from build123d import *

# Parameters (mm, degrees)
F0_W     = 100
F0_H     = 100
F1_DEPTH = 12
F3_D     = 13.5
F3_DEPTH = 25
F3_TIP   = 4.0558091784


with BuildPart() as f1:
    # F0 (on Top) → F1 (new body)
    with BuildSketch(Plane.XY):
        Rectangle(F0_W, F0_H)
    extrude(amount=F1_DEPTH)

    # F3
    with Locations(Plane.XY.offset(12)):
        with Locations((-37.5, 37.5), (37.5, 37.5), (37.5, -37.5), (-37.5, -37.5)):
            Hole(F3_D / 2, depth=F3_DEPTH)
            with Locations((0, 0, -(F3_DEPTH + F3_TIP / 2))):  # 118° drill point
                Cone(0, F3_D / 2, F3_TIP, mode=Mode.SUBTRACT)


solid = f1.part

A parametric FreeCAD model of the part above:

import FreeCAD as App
import Part
import Sketcher
from FreeCAD import Vector

doc = App.newDocument("Part")
body = doc.addObject("PartDesign::Body", "Body")

# Sketch on XY plane
sketch1 = body.newObject("Sketcher::SketchObject", "Sketch")
sketch1.AttachmentSupport = (doc.getObject("XY_Plane"), [""])
sketch1.MapMode = "FlatFace"
sketch1.addGeometry(Part.LineSegment(Vector(-50, 50, 0), Vector(-50, -50, 0)), False)
sketch1.addGeometry(Part.LineSegment(Vector(-50, -50, 0), Vector(50, -50, 0)), False)
sketch1.addGeometry(Part.LineSegment(Vector(50, -50, 0), Vector(50, 50, 0)), False)
sketch1.addGeometry(Part.LineSegment(Vector(50, 50, 0), Vector(-50, 50, 0)), False)
sketch1.addConstraint(Sketcher.Constraint("Coincident", 0, 2, 1, 1))
sketch1.addConstraint(Sketcher.Constraint("Coincident", 1, 2, 2, 1))
sketch1.addConstraint(Sketcher.Constraint("Coincident", 2, 2, 3, 1))
sketch1.addConstraint(Sketcher.Constraint("Coincident", 3, 2, 0, 1))
sketch1.addConstraint(Sketcher.Constraint("Vertical", 0))
sketch1.addConstraint(Sketcher.Constraint("Horizontal", 1))
sketch1.addConstraint(Sketcher.Constraint("Vertical", 2))
sketch1.addConstraint(Sketcher.Constraint("Horizontal", 3))
sketch1.addConstraint(Sketcher.Constraint("Symmetric", 0, 2, 2, 2, -1, 1))
sketch1.addConstraint(Sketcher.Constraint("Equal", 3, 0))
sketch1.addConstraint(Sketcher.Constraint("DistanceX", 1, 1, 1, 2, 100.0))
pad1 = body.newObject("PartDesign::Pad", "Pad")
pad1.Profile = sketch1
pad1.Length = 12

# Sketch on XY plane
sketch2 = body.newObject("Sketcher::SketchObject", "Sketch001")
sketch2.AttachmentSupport = (doc.getObject("XY_Plane"), [""])
sketch2.MapMode = "FlatFace"
sketch2.AttachmentOffset = App.Placement(Vector(0, 0, 12), App.Rotation())
sketch2.addGeometry(Part.Circle(Vector(-37.5, 37.5, 0), Vector(0, 0, 1), 6.75), False)
sketch2.addGeometry(Part.Circle(Vector(37.5, 37.5, 0), Vector(0, 0, 1), 6.75), False)
sketch2.addGeometry(Part.Circle(Vector(37.5, -37.5, 0), Vector(0, 0, 1), 6.75), False)
sketch2.addGeometry(Part.Circle(Vector(-37.5, -37.5, 0), Vector(0, 0, 1), 6.75), False)
sketch2.addConstraint(Sketcher.Constraint("Equal", 0, 1))
sketch2.addConstraint(Sketcher.Constraint("Equal", 1, 2))
sketch2.addConstraint(Sketcher.Constraint("Equal", 2, 3))
sketch2.addConstraint(Sketcher.Constraint("Symmetric", 0, 3, 2, 3, -1, 1))
sketch2.addConstraint(Sketcher.Constraint("Symmetric", 1, 3, 3, 3, -1, 1))
sketch2.addConstraint(Sketcher.Constraint("Symmetric", 0, 3, 1, 3, -2))
sketch2.addConstraint(Sketcher.Constraint("Diameter", 0, 13.5))
sketch2.addConstraint(Sketcher.Constraint("DistanceX", 0, 3, 1, 3, 75.0))
sketch2.addConstraint(Sketcher.Constraint("DistanceY", 2, 3, 1, 3, 75.0))
doc.recompute()
hole = body.newObject("PartDesign::Hole", "Hole")
hole.Profile = sketch2
hole.ThreadType = "None"
hole.Diameter = 13.5
hole.DepthType = "Dimension"
hole.Depth = 25
hole.DrillPoint = "Angled"
hole.DrillPointAngle = 118

doc.recompute()
